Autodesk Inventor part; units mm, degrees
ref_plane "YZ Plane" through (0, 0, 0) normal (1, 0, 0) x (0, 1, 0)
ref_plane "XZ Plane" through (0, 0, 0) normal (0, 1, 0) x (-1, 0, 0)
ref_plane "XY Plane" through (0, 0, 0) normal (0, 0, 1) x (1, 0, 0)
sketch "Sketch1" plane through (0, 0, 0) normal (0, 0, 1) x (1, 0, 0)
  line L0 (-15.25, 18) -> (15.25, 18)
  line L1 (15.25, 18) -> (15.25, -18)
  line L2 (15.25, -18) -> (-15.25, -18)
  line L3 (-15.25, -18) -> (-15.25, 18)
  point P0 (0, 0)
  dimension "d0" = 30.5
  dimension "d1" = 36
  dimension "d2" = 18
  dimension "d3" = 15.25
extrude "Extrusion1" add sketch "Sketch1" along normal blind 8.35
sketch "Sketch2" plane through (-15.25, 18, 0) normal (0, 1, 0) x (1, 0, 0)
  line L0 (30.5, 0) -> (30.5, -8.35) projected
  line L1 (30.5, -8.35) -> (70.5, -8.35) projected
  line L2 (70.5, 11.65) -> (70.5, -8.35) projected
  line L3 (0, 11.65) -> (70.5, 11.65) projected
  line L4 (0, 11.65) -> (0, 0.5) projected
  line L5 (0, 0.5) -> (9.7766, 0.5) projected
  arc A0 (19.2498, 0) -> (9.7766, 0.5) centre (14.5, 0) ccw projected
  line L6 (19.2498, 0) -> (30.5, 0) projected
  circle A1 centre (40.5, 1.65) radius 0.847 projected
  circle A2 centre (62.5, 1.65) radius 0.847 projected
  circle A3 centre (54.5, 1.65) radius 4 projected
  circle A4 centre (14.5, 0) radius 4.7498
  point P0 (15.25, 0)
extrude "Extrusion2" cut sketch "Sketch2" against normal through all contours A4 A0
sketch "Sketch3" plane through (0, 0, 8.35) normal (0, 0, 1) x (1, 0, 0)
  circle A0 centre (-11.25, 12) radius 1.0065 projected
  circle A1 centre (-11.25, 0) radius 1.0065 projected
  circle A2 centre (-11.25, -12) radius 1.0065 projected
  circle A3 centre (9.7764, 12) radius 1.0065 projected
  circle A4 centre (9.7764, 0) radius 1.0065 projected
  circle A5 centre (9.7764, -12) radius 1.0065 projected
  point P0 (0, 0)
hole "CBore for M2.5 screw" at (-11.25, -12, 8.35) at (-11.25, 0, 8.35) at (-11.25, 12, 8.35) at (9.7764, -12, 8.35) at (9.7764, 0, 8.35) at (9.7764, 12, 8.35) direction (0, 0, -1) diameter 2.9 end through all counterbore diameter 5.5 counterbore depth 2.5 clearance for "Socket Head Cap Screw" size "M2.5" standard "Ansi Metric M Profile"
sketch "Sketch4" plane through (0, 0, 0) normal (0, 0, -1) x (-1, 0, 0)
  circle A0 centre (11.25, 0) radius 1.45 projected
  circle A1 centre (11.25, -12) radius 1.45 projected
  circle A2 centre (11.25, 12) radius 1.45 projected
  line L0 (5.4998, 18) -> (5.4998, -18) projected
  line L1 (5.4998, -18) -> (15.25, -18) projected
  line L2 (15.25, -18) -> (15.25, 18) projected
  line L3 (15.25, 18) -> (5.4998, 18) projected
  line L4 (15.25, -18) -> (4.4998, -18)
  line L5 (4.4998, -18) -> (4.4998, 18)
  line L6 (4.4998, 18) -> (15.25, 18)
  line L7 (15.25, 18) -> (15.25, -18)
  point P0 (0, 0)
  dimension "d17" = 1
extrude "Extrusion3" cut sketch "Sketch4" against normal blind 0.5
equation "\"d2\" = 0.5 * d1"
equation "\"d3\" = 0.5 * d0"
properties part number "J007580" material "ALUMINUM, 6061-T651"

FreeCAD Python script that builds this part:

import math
import FreeCAD as App
import Part
import Sketcher
from FreeCAD import Vector

doc = App.newDocument("Part")
body = doc.addObject("PartDesign::Body", "Body")

# Sketch on XY plane
sketch1 = body.newObject("Sketcher::SketchObject", "Sketch")
sketch1.AttachmentSupport = (doc.getObject("XY_Plane"), [""])
sketch1.MapMode = "FlatFace"
sketch1.addGeometry([
    Part.LineSegment(Vector(15.25, 18, 0), Vector(-15.25, 18, 0)),
    Part.LineSegment(Vector(-15.25, 18, 0), Vector(-15.25, -18, 0)),
    Part.LineSegment(Vector(-15.25, -18, 0), Vector(15.25, -18, 0)),
    Part.LineSegment(Vector(15.25, -18, 0), Vector(15.25, 18, 0)),
], False)
sketch1.addConstraint([
    Sketcher.Constraint("Coincident", 0, 2, 1, 1),
    Sketcher.Constraint("Coincident", 1, 2, 2, 1),
    Sketcher.Constraint("Coincident", 2, 2, 3, 1),
    Sketcher.Constraint("Coincident", 3, 2, 0, 1),
    Sketcher.Constraint("Horizontal", 0),
    Sketcher.Constraint("Vertical", 1),
    Sketcher.Constraint("Horizontal", 2),
    Sketcher.Constraint("Vertical", 3),
    Sketcher.Constraint("Symmetric", 0, 2, 2, 2, -1, 1),
    Sketcher.Constraint("DistanceY", 1, 2, 1, 1, 36.0),
    Sketcher.Constraint("DistanceX", 0, 2, 0, 1, 30.5),
])
pad1 = body.newObject("PartDesign::Pad", "Pad")
pad1.Profile = sketch1
pad1.Length = 8.35

# Sketch on XZ plane
sketch2 = body.newObject("Sketcher::SketchObject", "Sketch001")
sketch2.AttachmentSupport = (doc.getObject("XZ_Plane"), [""])
sketch2.MapMode = "FlatFace"
sketch2.AttachmentOffset = App.Placement(Vector(0, 0, -18), App.Rotation())
sketch2.addGeometry([
    Part.ArcOfCircle(Part.Circle(Vector(-0.75, 0, 0), Vector(0, 0, 1), 4.7498), math.radians(0), math.radians(186.042596)),
    Part.ArcOfCircle(Part.Circle(Vector(-0.75, 0, 0), Vector(0, 0, 1), 4.7498), math.radians(-173.957404), math.radians(0)),
], False)
sketch2.addConstraint([
    Sketcher.Constraint("Tangent", 0, 1, 1, 2),
    Sketcher.Constraint("Coincident", 1, 1, 0, 2),
    Sketcher.Constraint("PointOnObject", 0, 3, -1),
    Sketcher.Constraint("PointOnObject", 0, 1, -1),
    Sketcher.Constraint("DistanceY", 1, 1, -1, 1, 0.5),
    Sketcher.Constraint("Radius", 0, 4.7498),
    Sketcher.Constraint("DistanceX", 0, 3, -1, 1, 0.75),
])
pocket1 = body.newObject("PartDesign::Pocket", "Pocket")
pocket1.Profile = sketch2
pocket1.Type = "ThroughAll"
pocket1.Reversed = True

# Sketch on XY plane
sketch3 = body.newObject("Sketcher::SketchObject", "Sketch002")
sketch3.AttachmentSupport = (doc.getObject("XY_Plane"), [""])
sketch3.MapMode = "FlatFace"
sketch3.AttachmentOffset = App.Placement(Vector(0, 0, 8.35), App.Rotation())
sketch3.addGeometry([
    Part.Circle(Vector(-11.25, -12, 0), Vector(0, 0, 1), 1.45),  # 0
    Part.Circle(Vector(-11.25, 0, 0), Vector(0, 0, 1), 1.45),  # 1
    Part.Circle(Vector(-11.25, 12, 0), Vector(0, 0, 1), 1.45),  # 2
    Part.Circle(Vector(9.7764, -12, 0), Vector(0, 0, 1), 1.45),  # 3
    Part.Circle(Vector(9.7764, 0, 0), Vector(0, 0, 1), 1.45),  # 4
    Part.Circle(Vector(9.7764, 12, 0), Vector(0, 0, 1), 1.45),  # 5
], False)
sketch3.addConstraint([
    Sketcher.Constraint("Equal", 0, 1),
    Sketcher.Constraint("Equal", 1, 2),
    Sketcher.Constraint("Equal", 2, 3),
    Sketcher.Constraint("Equal", 3, 4),
    Sketcher.Constraint("Equal", 4, 5),
    Sketcher.Constraint("Symmetric", 0, 3, 2, 3, -1),
    Sketcher.Constraint("Symmetric", 3, 3, 5, 3, -1),
    Sketcher.Constraint("PointOnObject", 1, 3, -1),
    Sketcher.Constraint("PointOnObject", 4, 3, -1),
    Sketcher.Constraint("Horizontal", 0, 3, 3, 3),
    Sketcher.Constraint("Vertical", 0, 3, 1, 3),
    Sketcher.Constraint("Vertical", 3, 3, 4, 3),
    Sketcher.Constraint("Diameter", 0, 2.9),
    Sketcher.Constraint("DistanceY", 0, 3, -1, 1, 12.0),
    Sketcher.Constraint("DistanceX", 0, 3, -1, 1, 11.25),
    Sketcher.Constraint("DistanceX", -1, 1, 3, 3, 9.7764),
])
doc.recompute()
hole = body.newObject("PartDesign::Hole", "Hole")
hole.Profile = sketch3
hole.ThreadType = "None"
hole.Diameter = 2.9
hole.DepthType = "ThroughAll"
hole.HoleCutType = "Counterbore"
hole.HoleCutDiameter = 5.5
hole.HoleCutDepth = 2.5

# Sketch on XY plane
sketch4 = body.newObject("Sketcher::SketchObject", "Sketch003")
sketch4.AttachmentSupport = (doc.getObject("XY_Plane"), [""])
sketch4.MapMode = "FlatFace"
sketch4.addGeometry([
    Part.LineSegment(Vector(-15.25, 18, 0), Vector(-4.4998, 18, 0)),  # 0
    Part.LineSegment(Vector(-4.4998, 18, 0), Vector(-4.4998, -18, 0)),  # 1
    Part.LineSegment(Vector(-4.4998, -18, 0), Vector(-15.25, -18, 0)),  # 2
    Part.LineSegment(Vector(-15.25, -18, 0), Vector(-15.25, 18, 0)),  # 3
    Part.Circle(Vector(-11.25, -12, 0), Vector(0, 0, 1), 1.45),  # 4
    Part.Circle(Vector(-11.25, 0, 0), Vector(0, 0, 1), 1.45),  # 5
    Part.Circle(Vector(-11.25, 12, 0), Vector(0, 0, 1), 1.45),  # 6
], False)
sketch4.addConstraint([
    Sketcher.Constraint("Coincident", 0, 2, 1, 1),
    Sketcher.Constraint("Coincident", 1, 2, 2, 1),
    Sketcher.Constraint("Coincident", 2, 2, 3, 1),
    Sketcher.Constraint("Coincident", 3, 2, 0, 1),
    Sketcher.Constraint("Horizontal", 0),
    Sketcher.Constraint("Vertical", 1),
    Sketcher.Constraint("Horizontal", 2),
    Sketcher.Constraint("Vertical", 3),
    Sketcher.Constraint("Equal", 4, 5),
    Sketcher.Constraint("Equal", 5, 6),
    Sketcher.Constraint("Symmetric", 4, 3, 6, 3, -1),
    Sketcher.Constraint("PointOnObject", 5, 3, -1),
    Sketcher.Constraint("Vertical", 4, 3, 5, 3),
    Sketcher.Constraint("Diameter", 4, 2.9),
    Sketcher.Constraint("DistanceY", 1, 2, 1, 1, 36.0),
    Sketcher.Constraint("DistanceY", 4, 3, -1, 1, 12.0),
    Sketcher.Constraint("DistanceY", -1, 1, 0, 2, 18.0),
    Sketcher.Constraint("DistanceX", 2, 2, 4, 3, 4.0),
    Sketcher.Constraint("DistanceX", 4, 3, -1, 1, 11.25),
    Sketcher.Constraint("DistanceX", 0, 1, 0, 2, 10.7502),
])
pocket2 = body.newObject("PartDesign::Pocket", "Pocket001")
pocket2.Profile = sketch4
pocket2.Length = 0.5
pocket2.Reversed = True

doc.recompute()
